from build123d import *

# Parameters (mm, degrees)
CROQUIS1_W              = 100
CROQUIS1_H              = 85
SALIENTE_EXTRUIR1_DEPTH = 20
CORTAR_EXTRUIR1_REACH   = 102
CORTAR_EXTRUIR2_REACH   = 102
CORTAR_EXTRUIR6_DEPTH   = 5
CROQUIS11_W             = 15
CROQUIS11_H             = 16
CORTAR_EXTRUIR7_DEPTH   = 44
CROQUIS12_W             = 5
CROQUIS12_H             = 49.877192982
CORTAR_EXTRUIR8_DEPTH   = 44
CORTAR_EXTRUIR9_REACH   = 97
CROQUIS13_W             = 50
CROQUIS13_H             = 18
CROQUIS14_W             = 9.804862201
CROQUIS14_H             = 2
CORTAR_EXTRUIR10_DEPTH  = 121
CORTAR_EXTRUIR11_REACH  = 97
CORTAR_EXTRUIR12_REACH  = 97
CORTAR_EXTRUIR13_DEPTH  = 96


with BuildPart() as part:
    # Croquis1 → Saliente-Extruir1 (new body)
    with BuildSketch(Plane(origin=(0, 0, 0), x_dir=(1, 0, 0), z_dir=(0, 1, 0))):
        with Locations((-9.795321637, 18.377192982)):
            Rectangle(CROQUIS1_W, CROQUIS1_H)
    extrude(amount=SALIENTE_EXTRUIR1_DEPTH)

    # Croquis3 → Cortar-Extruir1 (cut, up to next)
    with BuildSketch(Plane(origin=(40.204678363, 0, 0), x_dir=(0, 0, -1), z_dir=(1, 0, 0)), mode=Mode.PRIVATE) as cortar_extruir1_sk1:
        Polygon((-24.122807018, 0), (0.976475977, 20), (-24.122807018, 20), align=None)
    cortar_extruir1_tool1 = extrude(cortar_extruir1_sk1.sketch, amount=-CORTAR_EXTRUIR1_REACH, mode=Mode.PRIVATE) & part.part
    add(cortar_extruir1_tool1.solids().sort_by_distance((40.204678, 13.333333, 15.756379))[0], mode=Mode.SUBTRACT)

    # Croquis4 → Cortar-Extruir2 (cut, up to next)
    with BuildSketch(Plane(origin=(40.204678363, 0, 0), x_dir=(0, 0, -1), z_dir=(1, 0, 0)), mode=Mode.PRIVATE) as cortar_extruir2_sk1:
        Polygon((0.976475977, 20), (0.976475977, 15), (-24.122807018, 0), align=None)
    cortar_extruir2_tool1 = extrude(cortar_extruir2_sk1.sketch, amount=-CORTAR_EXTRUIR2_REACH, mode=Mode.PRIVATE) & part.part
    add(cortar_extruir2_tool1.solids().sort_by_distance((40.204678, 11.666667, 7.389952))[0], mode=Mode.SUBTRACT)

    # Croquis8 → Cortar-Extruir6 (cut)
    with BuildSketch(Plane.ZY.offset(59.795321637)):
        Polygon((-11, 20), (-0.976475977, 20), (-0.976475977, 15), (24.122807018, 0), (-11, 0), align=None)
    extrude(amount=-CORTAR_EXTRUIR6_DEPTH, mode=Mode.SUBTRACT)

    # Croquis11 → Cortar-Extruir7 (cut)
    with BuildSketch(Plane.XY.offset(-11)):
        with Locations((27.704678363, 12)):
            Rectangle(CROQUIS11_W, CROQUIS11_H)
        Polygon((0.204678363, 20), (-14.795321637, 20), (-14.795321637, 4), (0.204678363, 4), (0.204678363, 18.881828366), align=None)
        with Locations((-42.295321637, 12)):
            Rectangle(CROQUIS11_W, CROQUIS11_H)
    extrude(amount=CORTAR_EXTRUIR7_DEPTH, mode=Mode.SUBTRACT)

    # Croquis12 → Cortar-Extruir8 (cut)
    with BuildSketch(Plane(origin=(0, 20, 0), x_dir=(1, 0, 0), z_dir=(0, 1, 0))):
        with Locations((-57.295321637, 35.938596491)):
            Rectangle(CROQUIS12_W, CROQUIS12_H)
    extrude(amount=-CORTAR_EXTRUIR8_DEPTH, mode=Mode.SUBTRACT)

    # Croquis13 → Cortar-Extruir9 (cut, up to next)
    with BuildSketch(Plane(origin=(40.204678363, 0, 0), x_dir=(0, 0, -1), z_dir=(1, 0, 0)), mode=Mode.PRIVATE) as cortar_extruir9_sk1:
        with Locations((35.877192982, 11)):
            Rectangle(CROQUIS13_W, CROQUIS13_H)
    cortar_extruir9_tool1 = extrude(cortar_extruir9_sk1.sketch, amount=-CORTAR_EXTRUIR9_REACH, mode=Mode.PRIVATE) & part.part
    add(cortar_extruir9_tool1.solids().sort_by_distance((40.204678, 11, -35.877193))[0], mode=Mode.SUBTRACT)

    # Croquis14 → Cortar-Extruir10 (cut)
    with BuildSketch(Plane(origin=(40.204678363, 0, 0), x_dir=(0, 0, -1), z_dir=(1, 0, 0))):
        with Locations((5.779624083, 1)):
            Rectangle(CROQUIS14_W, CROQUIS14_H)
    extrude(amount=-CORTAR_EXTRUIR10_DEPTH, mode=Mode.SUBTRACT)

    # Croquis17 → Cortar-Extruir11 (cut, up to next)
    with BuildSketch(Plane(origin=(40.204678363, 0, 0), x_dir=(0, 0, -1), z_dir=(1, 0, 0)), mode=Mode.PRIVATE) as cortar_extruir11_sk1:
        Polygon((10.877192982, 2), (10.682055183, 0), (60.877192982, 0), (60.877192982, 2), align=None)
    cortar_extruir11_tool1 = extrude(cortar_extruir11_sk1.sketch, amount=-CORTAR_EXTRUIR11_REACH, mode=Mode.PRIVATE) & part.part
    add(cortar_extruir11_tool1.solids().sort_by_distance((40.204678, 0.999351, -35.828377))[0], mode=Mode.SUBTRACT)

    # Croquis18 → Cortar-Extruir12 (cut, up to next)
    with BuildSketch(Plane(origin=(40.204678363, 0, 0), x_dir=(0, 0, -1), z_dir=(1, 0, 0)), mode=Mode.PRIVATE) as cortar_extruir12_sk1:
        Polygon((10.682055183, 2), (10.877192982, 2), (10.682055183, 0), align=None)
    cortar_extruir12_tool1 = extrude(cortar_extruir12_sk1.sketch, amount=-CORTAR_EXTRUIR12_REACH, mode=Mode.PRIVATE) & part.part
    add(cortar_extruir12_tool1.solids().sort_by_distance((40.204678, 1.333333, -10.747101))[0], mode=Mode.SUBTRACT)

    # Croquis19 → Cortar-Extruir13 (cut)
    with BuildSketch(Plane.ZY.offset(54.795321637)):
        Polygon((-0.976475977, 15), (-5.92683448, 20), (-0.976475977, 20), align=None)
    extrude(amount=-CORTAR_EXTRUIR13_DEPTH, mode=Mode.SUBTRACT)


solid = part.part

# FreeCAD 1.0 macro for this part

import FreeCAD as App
import Part
import Sketcher
Q = App.Units.Quantity


def add_polygon(sketch, points):
    """Adds a closed chain of lines whose ends are joined by coincident constraints."""
    first, n = sketch.GeometryCount, len(points)
    for a, b in zip(points, points[1:] + points[:1]):
        sketch.addGeometry(Part.LineSegment(App.Vector(*a, 0), App.Vector(*b, 0)), False)
    for i in range(n):
        sketch.addConstraint(Sketcher.Constraint("Coincident", first + i, 2, first + (i + 1) % n, 1))

doc = App.newDocument("Part")
body = doc.addObject("PartDesign::Body", "Body")

sketch1 = doc.addObject("Sketcher::SketchObject", "Sketch")
body.addObject(sketch1)
sketch1.AttachmentSupport = (doc.XZ_Plane, [""])
sketch1.MapMode = "FlatFace"
add_polygon(sketch1, [(-60, -61), (-60, 24), (40, 24), (40, -61)])
sketch1.addConstraint([
    Sketcher.Constraint("Vertical", 0),
    Sketcher.Constraint("Horizontal", 1),
    Sketcher.Constraint("Vertical", 2),
    Sketcher.Constraint("Horizontal", 3),
    Sketcher.Constraint("DistanceX", 1, 1, 1, 2, Q("100 mm")),
    Sketcher.Constraint("DistanceY", 0, 1, 0, 2, Q("85 mm")),
    Sketcher.Constraint("DistanceX", 0, 2, -1, 1, Q("59.795322 mm")),
    Sketcher.Constraint("DistanceY", -1, 1, 0, 2, Q("24.122807 mm")),
])
pad1 = doc.addObject("PartDesign::Pad", "Pad")
body.addObject(pad1)
pad1.Profile = sketch1
pad1.Length = 20
pad1.Reversed = True

sketch2 = doc.addObject("Sketcher::SketchObject", "Sketch001")
body.addObject(sketch2)
sketch2.AttachmentSupport = (doc.YZ_Plane, [""])
sketch2.MapMode = "FlatFace"
sketch2.AttachmentOffset = App.Placement(App.Vector(0, 0, 40.204678), App.Rotation())
add_polygon(sketch2, [(0, 24), (20, -1), (20, 24)])
sketch2.addConstraint([
    Sketcher.Constraint("Vertical", 1),
    Sketcher.Constraint("Horizontal", 2),
    Sketcher.Constraint("PointOnObject", 2, 2, -2),
    Sketcher.Constraint("DistanceX", 2, 2, 2, 1, Q("20 mm")),
    Sketcher.Constraint("Distance", 0, Q("32.093208 mm")),
    Sketcher.Constraint("DistanceY", 0, 2, -1, 1, Q("0.976476 mm")),
])
pocket1 = doc.addObject("PartDesign::Pocket", "Pocket")
body.addObject(pocket1)
pocket1.Profile = sketch2
pocket1.Type = "UpToFirst"

sketch3 = doc.addObject("Sketcher::SketchObject", "Sketch002")
body.addObject(sketch3)
sketch3.AttachmentSupport = (doc.YZ_Plane, [""])
sketch3.MapMode = "FlatFace"
sketch3.AttachmentOffset = App.Placement(App.Vector(0, 0, 40.204678), App.Rotation())
add_polygon(sketch3, [(15, -1), (20, -1), (0, 24)])
sketch3.addConstraint([
    Sketcher.Constraint("Horizontal", 0),
    Sketcher.Constraint("PointOnObject", 1, 2, -2),
    Sketcher.Constraint("DistanceX", 0, 1, 0, 2, Q("5 mm")),
    Sketcher.Constraint("DistanceX", -1, 1, 0, 2, Q("20 mm")),
    Sketcher.Constraint("Distance", 1, Q("32.093208 mm")),
    Sketcher.Constraint("DistanceY", 0, 2, -1, 1, Q("0.976476 mm")),
])
pocket2 = doc.addObject("PartDesign::Pocket", "Pocket001")
body.addObject(pocket2)
pocket2.Profile = sketch3
pocket2.Type = "UpToFirst"

sketch4 = doc.addObject("Sketcher::SketchObject", "Sketch003")
body.addObject(sketch4)
sketch4.AttachmentSupport = (doc.YZ_Plane, [""])
sketch4.MapMode = "FlatFace"
sketch4.AttachmentOffset = App.Placement(App.Vector(0, 0, -59.795322), App.Rotation())
add_polygon(sketch4, [(20, -1), (20, -11), (0, -11), (0, 24), (15, -1)])
sketch4.addConstraint([
    Sketcher.Constraint("Vertical", 0),
    Sketcher.Constraint("Horizontal", 1),
    Sketcher.Constraint("Vertical", 2),
    Sketcher.Constraint("Horizontal", 4),
    Sketcher.Constraint("PointOnObject", 1, 2, -2),
    Sketcher.Constraint("DistanceX", 1, 2, 1, 1, Q("20 mm")),
    Sketcher.Constraint("DistanceX", 4, 1, 4, 2, Q("5 mm")),
    Sketcher.Constraint("DistanceY", 0, 2, -1, 1, Q("11 mm")),
    Sketcher.Constraint("Distance", 3, Q("29.239939 mm")),
    Sketcher.Constraint("DistanceY", 0, 2, 0, 1, Q("10.023524 mm")),
])
pocket3 = doc.addObject("PartDesign::Pocket", "Pocket002")
body.addObject(pocket3)
pocket3.Profile = sketch4
pocket3.Length = 5
pocket3.Reversed = True

sketch5 = doc.addObject("Sketcher::SketchObject", "Sketch004")
body.addObject(sketch5)
sketch5.AttachmentSupport = (doc.XY_Plane, [""])
sketch5.MapMode = "FlatFace"
sketch5.AttachmentOffset = App.Placement(App.Vector(0, 0, -11), App.Rotation())
add_polygon(sketch5, [(20, 20), (20, 4), (35, 4), (35, 20)])
add_polygon(sketch5, [(0, 20), (-15, 20), (-15, 4), (0, 4)])
add_polygon(sketch5, [(-50, 20), (-50, 4), (-35, 4), (-35, 20)])
sketch5.addConstraint([
    Sketcher.Constraint("Vertical", 0),
    Sketcher.Constraint("Horizontal", 1),
    Sketcher.Constraint("Vertical", 2),
    Sketcher.Constraint("Horizontal", 3),
    Sketcher.Constraint("Horizontal", 4),
    Sketcher.Constraint("Vertical", 5),
    Sketcher.Constraint("Horizontal", 6),
    Sketcher.Constraint("Vertical", 7),
    Sketcher.Constraint("Vertical", 8),
    Sketcher.Constraint("Horizontal", 9),
    Sketcher.Constraint("Vertical", 10),
    Sketcher.Constraint("Horizontal", 11),
    Sketcher.Constraint("Horizontal", 3, 2, 4, 2),
    Sketcher.Constraint("Horizontal", 1, 2, 5, 2),
    Sketcher.Constraint("Horizontal", 6, 2, 8, 2),
    Sketcher.Constraint("Horizontal", 7, 2, 10, 2),
    Sketcher.Constraint("Equal", 3, 4),
    Sketcher.Constraint("Equal", 6, 9),
    Sketcher.Constraint("DistanceX", 1, 1, 1, 2, Q("15 mm")),
    Sketcher.Constraint("DistanceY", 0, 2, 0, 1, Q("16 mm")),
    Sketcher.Constraint("DistanceY", -1, 1, 0, 2, Q("4 mm")),
    Sketcher.Constraint("DistanceX", 4, 2, 3, 2, Q("35 mm")),
    Sketcher.Constraint("DistanceX", 8, 2, 5, 2, Q("35 mm")),
    Sketcher.Constraint("DistanceX", -1, 1, 0, 2, Q("20.204678 mm")),
])
pocket4 = doc.addObject("PartDesign::Pocket", "Pocket003")
body.addObject(pocket4)
pocket4.Profile = sketch5
pocket4.Length = 44
pocket4.Reversed = True

sketch6 = doc.addObject("Sketcher::SketchObject", "Sketch005")
body.addObject(sketch6)
sketch6.AttachmentSupport = (doc.XZ_Plane, [""])
sketch6.MapMode = "FlatFace"
sketch6.AttachmentOffset = App.Placement(App.Vector(0, 0, -20), App.Rotation())
add_polygon(sketch6, [(-60, -61), (-60, -11), (-55, -11), (-55, -61)])
sketch6.addConstraint([
    Sketcher.Constraint("Vertical", 0),
    Sketcher.Constraint("Horizontal", 1),
    Sketcher.Constraint("Vertical", 2),
    Sketcher.Constraint("Horizontal", 3),
    Sketcher.Constraint("DistanceX", 1, 1, 1, 2, Q("5 mm")),
    Sketcher.Constraint("DistanceY", 0, 2, -1, 1, Q("11 mm")),
    Sketcher.Constraint("DistanceY", 0, 1, 0, 2, Q("49.877193 mm")),
    Sketcher.Constraint("DistanceX", 0, 2, -1, 1, Q("59.795322 mm")),
])
pocket5 = doc.addObject("PartDesign::Pocket", "Pocket004")
body.addObject(pocket5)
pocket5.Profile = sketch6
pocket5.Length = 44
pocket5.Reversed = True

sketch7 = doc.addObject("Sketcher::SketchObject", "Sketch006")
body.addObject(sketch7)
sketch7.AttachmentSupport = (doc.YZ_Plane, [""])
sketch7.MapMode = "FlatFace"
sketch7.AttachmentOffset = App.Placement(App.Vector(0, 0, 40.204678), App.Rotation())
add_polygon(sketch7, [(20, -11), (2, -11), (2, -61), (20, -61)])
sketch7.addConstraint([
    Sketcher.Constraint("Horizontal", 0),
    Sketcher.Constraint("Vertical", 1),
    Sketcher.Constraint("Horizontal", 2),
    Sketcher.Constraint("Vertical", 3),
    Sketcher.Constraint("DistanceX", 0, 2, 0, 1, Q("18 mm")),
    Sketcher.Constraint("DistanceY", 1, 2, 1, 1, Q("50 mm")),
    Sketcher.Constraint("DistanceX", -1, 1, 0, 2, Q("2 mm")),
    Sketcher.Constraint("DistanceY", 0, 2, -1, 1, Q("10.877193 mm")),
])
pocket6 = doc.addObject("PartDesign::Pocket", "Pocket005")
body.addObject(pocket6)
pocket6.Profile = sketch7
pocket6.Type = "UpToFirst"

sketch8 = doc.addObject("Sketcher::SketchObject", "Sketch007")
body.addObject(sketch8)
sketch8.AttachmentSupport = (doc.YZ_Plane, [""])
sketch8.MapMode = "FlatFace"
sketch8.AttachmentOffset = App.Placement(App.Vector(0, 0, 40.204678), App.Rotation())
add_polygon(sketch8, [(2, -0.9), (0, -0.9), (0, -10.7), (2, -10.7)])
sketch8.addConstraint([
    Sketcher.Constraint("Horizontal", 0),
    Sketcher.Constraint("Vertical", 1),
    Sketcher.Constraint("Horizontal", 2),
    Sketcher.Constraint("Vertical", 3),
    Sketcher.Constraint("PointOnObject", 0, 2, -2),
    Sketcher.Constraint("DistanceX", 0, 2, 0, 1, Q("2 mm")),
    Sketcher.Constraint("DistanceY", 1, 2, 1, 1, Q("9.804862 mm")),
    Sketcher.Constraint("DistanceY", 0, 2, -1, 1, Q("0.877193 mm")),
])
pocket7 = doc.addObject("PartDesign::Pocket", "Pocket006")
body.addObject(pocket7)
pocket7.Profile = sketch8
pocket7.Length = 121

sketch9 = doc.addObject("Sketcher::SketchObject", "Sketch008")
body.addObject(sketch9)
sketch9.AttachmentSupport = (doc.YZ_Plane, [""])
sketch9.MapMode = "FlatFace"
sketch9.AttachmentOffset = App.Placement(App.Vector(0, 0, 40.204678), App.Rotation())
add_polygon(sketch9, [(2, -10.9), (0, -10.7), (0, -60.9), (2, -60.9)])
sketch9.addConstraint([
    Sketcher.Constraint("Vertical", 1),
    Sketcher.Constraint("Horizontal", 2),
    Sketcher.Constraint("Vertical", 3),
    Sketcher.Constraint("PointOnObject", 0, 2, -2),
    Sketcher.Constraint("DistanceX", 2, 1, 2, 2, Q("2 mm")),
    Sketcher.Constraint("DistanceY", 3, 1, 3, 2, Q("50 mm")),
    Sketcher.Constraint("DistanceY", 1, 2, 1, 1, Q("50.195138 mm")),
    Sketcher.Constraint("DistanceY", 0, 2, -1, 1, Q("10.682055 mm")),
])
pocket8 = doc.addObject("PartDesign::Pocket", "Pocket007")
body.addObject(pocket8)
pocket8.Profile = sketch9
pocket8.Type = "UpToFirst"

sketch10 = doc.addObject("Sketcher::SketchObject", "Sketch009")
body.addObject(sketch10)
sketch10.AttachmentSupport = (doc.YZ_Plane, [""])
sketch10.MapMode = "FlatFace"
sketch10.AttachmentOffset = App.Placement(App.Vector(0, 0, 40.204678), App.Rotation())
add_polygon(sketch10, [(2, -10.88), (2, -10.68), (0, -10.68)])
sketch10.addConstraint([
    Sketcher.Constraint("Vertical", 0),
    Sketcher.Constraint("Horizontal", 1),
    Sketcher.Constraint("PointOnObject", 1, 2, -2),
    Sketcher.Constraint("DistanceX", 1, 2, 1, 1, Q("2 mm")),
    Sketcher.Constraint("DistanceY", 0, 1, 0, 2, Q("0.195138 mm")),
    Sketcher.Constraint("DistanceY", 0, 2, -1, 1, Q("10.682055 mm")),
])
pocket9 = doc.addObject("PartDesign::Pocket", "Pocket008")
body.addObject(pocket9)
pocket9.Profile = sketch10
pocket9.Type = "UpToFirst"

sketch11 = doc.addObject("Sketcher::SketchObject", "Sketch010")
body.addObject(sketch11)
sketch11.AttachmentSupport = (doc.YZ_Plane, [""])
sketch11.MapMode = "FlatFace"
sketch11.AttachmentOffset = App.Placement(App.Vector(0, 0, -54.795322), App.Rotation())
add_polygon(sketch11, [(20, -5.9), (15, -1), (20, -1)])
sketch11.addConstraint([
    Sketcher.Constraint("Horizontal", 1),
    Sketcher.Constraint("Vertical", 2),
    Sketcher.Constraint("DistanceX", 1, 1, 1, 2, Q("5 mm")),
    Sketcher.Constraint("DistanceX", -1, 1, 0, 2, Q("15 mm")),
    Sketcher.Constraint("DistanceY", 2, 2, 2, 1, Q("4.950359 mm")),
    Sketcher.Constraint("DistanceY", 0, 2, -1, 1, Q("0.976476 mm")),
])
pocket10 = doc.addObject("PartDesign::Pocket", "Pocket009")
body.addObject(pocket10)
pocket10.Profile = sketch11
pocket10.Length = 96
pocket10.Reversed = True

doc.recompute()
